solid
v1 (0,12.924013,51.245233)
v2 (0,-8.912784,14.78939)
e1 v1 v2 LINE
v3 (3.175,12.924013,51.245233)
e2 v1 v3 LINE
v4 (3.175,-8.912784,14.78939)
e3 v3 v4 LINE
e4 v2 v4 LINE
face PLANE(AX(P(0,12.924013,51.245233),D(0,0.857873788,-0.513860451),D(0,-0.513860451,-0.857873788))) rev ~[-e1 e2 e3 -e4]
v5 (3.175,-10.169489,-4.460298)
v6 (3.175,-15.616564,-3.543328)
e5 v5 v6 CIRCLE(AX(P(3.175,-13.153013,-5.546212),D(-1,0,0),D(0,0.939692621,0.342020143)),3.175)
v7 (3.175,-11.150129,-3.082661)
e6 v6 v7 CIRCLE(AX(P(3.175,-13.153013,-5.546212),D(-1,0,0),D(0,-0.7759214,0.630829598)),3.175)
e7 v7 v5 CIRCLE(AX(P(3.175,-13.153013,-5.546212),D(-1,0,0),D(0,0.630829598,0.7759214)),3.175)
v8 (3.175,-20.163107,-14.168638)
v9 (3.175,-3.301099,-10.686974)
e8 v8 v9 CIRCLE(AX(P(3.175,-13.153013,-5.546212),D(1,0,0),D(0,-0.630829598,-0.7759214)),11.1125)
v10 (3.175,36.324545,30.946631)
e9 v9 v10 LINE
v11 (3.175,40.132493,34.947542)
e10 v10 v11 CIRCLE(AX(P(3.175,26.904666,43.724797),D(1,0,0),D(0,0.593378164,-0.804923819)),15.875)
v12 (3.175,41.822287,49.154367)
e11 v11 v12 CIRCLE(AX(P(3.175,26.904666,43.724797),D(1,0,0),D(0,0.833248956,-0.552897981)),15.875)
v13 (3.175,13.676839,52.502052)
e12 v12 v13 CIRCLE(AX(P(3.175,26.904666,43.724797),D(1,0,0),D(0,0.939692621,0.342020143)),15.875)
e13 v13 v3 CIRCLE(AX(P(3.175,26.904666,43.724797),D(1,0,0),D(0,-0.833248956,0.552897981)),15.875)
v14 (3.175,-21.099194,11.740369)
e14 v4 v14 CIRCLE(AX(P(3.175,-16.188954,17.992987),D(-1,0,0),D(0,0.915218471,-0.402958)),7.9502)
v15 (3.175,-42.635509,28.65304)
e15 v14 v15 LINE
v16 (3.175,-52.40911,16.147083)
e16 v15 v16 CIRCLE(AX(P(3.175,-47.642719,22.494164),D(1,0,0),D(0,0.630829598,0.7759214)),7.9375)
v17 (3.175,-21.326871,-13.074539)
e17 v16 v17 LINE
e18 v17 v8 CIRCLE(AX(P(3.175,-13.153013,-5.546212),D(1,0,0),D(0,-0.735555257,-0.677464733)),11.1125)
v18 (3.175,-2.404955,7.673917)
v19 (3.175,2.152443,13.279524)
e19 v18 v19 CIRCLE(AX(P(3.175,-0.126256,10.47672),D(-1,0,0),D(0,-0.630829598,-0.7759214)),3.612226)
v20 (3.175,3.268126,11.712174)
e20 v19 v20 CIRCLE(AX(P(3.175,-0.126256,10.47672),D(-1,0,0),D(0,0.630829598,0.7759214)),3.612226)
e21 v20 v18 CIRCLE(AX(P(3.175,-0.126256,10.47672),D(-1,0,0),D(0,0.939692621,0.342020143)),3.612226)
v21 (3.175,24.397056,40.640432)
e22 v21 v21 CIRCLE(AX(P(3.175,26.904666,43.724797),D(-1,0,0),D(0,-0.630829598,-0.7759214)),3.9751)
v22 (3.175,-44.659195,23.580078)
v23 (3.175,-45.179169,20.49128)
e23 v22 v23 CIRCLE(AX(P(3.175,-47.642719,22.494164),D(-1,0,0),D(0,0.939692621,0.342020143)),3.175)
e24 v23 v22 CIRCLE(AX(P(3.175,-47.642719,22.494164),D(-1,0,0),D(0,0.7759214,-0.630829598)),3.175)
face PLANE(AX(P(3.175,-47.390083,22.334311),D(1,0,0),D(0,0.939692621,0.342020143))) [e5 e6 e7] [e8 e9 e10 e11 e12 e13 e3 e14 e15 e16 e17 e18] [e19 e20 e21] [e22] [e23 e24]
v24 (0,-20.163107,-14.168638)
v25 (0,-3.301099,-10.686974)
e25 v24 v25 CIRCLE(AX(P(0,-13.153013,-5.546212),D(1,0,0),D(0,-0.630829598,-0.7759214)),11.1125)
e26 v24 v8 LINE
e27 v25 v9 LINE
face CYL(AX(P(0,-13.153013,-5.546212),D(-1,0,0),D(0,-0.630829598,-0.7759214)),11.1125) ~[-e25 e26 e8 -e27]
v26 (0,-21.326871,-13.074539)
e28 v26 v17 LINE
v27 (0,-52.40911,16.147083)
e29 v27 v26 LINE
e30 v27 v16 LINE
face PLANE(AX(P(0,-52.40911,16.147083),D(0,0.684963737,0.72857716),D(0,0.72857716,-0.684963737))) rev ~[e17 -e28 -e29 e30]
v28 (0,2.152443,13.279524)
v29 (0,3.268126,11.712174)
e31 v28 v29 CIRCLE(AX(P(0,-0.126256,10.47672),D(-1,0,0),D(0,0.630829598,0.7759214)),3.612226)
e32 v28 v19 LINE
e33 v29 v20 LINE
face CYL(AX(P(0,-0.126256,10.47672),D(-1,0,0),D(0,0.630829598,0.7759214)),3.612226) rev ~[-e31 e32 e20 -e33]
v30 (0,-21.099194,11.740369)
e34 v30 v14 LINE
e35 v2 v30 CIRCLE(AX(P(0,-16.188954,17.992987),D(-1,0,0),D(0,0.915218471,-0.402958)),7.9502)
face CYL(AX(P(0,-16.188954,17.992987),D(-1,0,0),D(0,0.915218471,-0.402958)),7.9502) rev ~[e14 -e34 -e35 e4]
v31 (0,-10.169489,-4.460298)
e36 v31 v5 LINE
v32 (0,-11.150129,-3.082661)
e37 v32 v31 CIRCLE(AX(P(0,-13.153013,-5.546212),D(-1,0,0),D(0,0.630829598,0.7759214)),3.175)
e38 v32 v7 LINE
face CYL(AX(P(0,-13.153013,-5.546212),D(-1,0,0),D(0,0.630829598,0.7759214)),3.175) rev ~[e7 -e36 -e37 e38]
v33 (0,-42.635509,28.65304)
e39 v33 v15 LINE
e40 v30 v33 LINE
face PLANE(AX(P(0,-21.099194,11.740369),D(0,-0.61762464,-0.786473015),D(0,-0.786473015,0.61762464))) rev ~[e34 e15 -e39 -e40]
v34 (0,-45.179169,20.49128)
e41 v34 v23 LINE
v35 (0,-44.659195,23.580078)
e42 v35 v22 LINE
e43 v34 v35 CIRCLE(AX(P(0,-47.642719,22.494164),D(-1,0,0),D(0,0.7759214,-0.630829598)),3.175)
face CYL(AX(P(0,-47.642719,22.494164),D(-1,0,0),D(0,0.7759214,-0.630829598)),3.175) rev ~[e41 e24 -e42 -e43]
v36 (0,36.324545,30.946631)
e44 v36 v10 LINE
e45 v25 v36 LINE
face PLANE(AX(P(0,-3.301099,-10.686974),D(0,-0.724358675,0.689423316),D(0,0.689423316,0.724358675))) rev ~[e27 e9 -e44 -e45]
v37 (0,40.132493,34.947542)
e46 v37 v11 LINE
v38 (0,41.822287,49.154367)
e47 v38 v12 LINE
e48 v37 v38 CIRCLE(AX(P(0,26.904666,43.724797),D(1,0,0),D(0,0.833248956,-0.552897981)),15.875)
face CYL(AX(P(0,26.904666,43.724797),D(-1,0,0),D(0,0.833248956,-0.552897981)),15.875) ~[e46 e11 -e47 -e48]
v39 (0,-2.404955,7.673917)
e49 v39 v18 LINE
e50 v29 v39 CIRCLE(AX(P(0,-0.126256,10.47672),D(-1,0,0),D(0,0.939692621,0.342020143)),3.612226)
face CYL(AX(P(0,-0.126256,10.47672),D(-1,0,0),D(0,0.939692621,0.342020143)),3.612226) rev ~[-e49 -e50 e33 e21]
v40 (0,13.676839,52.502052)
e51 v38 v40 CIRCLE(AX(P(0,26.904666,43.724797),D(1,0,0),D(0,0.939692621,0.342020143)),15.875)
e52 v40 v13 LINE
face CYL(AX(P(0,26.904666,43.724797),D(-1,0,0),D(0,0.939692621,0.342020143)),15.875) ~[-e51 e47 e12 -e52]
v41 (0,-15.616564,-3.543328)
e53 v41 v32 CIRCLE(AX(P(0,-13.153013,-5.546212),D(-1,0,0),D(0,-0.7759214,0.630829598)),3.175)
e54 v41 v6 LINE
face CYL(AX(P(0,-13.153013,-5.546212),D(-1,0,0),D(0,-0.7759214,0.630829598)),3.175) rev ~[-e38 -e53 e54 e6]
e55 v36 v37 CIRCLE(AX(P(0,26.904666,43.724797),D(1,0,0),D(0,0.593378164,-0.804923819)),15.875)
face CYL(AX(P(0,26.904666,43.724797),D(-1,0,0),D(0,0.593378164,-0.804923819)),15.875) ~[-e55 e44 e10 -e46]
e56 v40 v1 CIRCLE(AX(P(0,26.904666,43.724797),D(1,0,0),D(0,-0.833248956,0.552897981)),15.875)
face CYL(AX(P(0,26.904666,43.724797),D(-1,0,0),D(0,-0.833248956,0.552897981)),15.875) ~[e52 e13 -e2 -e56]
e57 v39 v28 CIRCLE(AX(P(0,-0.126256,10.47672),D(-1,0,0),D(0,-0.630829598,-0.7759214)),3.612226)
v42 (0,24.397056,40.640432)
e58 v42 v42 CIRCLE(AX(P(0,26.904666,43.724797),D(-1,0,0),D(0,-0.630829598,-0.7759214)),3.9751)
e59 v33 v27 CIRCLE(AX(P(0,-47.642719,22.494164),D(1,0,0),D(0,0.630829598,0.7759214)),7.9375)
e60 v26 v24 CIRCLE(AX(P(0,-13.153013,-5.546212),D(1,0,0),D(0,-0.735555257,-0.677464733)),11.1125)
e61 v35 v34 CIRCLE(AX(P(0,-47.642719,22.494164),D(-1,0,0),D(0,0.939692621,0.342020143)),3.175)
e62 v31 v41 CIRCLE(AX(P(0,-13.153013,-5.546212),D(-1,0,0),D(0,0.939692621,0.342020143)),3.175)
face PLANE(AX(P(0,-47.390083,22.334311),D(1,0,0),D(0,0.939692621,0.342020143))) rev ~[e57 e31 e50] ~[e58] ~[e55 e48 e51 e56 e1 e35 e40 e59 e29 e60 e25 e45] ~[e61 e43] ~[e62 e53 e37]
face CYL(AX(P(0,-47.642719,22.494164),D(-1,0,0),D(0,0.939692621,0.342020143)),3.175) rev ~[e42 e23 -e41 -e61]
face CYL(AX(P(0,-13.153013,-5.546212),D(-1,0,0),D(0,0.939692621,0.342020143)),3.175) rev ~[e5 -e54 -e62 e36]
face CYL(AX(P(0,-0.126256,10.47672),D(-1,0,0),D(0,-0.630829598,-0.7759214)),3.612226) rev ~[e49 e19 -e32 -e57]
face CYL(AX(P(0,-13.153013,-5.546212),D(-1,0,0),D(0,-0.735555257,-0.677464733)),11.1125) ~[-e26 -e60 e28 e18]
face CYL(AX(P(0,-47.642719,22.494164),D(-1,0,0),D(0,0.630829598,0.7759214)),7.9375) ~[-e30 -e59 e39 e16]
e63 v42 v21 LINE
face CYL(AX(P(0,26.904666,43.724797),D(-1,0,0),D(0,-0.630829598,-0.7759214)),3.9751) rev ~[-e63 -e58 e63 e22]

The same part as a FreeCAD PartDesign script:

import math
import FreeCAD as App
import Part
import Sketcher

V = App.Vector
Q = App.Units.Quantity

doc = App.newDocument("Part")
body = doc.addObject("PartDesign::Body", "Body")

sketch1 = doc.addObject("Sketcher::SketchObject", "Sketch")
body.addObject(sketch1)
sketch1.AttachmentSupport = (doc.YZ_Plane, [""])
sketch1.MapMode = "FlatFace"
sketch1.addGeometry(Part.ArcOfCircle(Part.Circle(V(-27.588917, 11.125727, 0), V(0, 0, 1), 11.1125), math.radians(-149.111355), math.radians(-47.555707)), False)
sketch1.addGeometry(Part.LineSegment(V(-20.08939, 2.925437, 0), V(31.386066, 28.495461, 0)), False)
sketch1.addGeometry(Part.ArcOfCircle(Part.Circle(V(26.904666, 43.724797, 0), V(0, 0, 1), 15.875), math.radians(-73.602899), math.radians(-53.566055)), False)
sketch1.addGeometry(Part.ArcOfCircle(Part.Circle(V(26.904666, 43.724797, 0), V(0, 0, 1), 15.875), math.radians(-53.566055), math.radians(0)), False)
sketch1.addGeometry(Part.ArcOfCircle(Part.Circle(V(26.904666, 43.724797, 0), V(0, 0, 1), 15.875), math.radians(0), math.radians(126.433945)), False)
sketch1.addGeometry(Part.ArcOfCircle(Part.Circle(V(26.904666, 43.724797, 0), V(0, 0, 1), 15.875), math.radians(126.433945), math.radians(131.723422)), False)
sketch1.addGeometry(Part.LineSegment(V(16.33929, 55.57336, 0), V(-16.64922, 28.784698, 0)), False)
sketch1.addGeometry(Part.ArcOfCircle(Part.Circle(V(-22.390888, 34.283691, 0), V(0, 0, 1), 7.9502), math.radians(-148.14288), math.radians(-43.763228)), False)
sketch1.addGeometry(Part.LineSegment(V(-29.143525, 30.087553, 0), V(-43.596568, 53.346119, 0)), False)
sketch1.addGeometry(Part.ArcOfCircle(Part.Circle(V(-50.408266, 49.271235, 0), V(0, 0, 1), 7.9375), math.radians(30.888645), math.radians(213.094991)), False)
sketch1.addGeometry(Part.LineSegment(V(-57.058037, 44.937132, 0), V(-37.84467, 6.847038, 0)), False)
sketch1.addGeometry(Part.ArcOfCircle(Part.Circle(V(-27.588917, 11.125727, 0), V(0, 0, 1), 11.1125), math.radians(-157.354155), math.radians(-149.111355)), False)
sketch1.addGeometry(Part.ArcOfCircle(Part.Circle(V(-27.588917, 11.125727, 0), V(0, 0, 1), 3.175), math.radians(0), math.radians(30.888645)), False)
sketch1.addGeometry(Part.ArcOfCircle(Part.Circle(V(-27.588917, 11.125727, 0), V(0, 0, 1), 3.175), math.radians(120.888645), math.radians(360)), False)
sketch1.addGeometry(Part.ArcOfCircle(Part.Circle(V(-27.588917, 11.125727, 0), V(0, 0, 1), 3.175), math.radians(30.888645), math.radians(120.888645)), False)
sketch1.addGeometry(Part.ArcOfCircle(Part.Circle(V(-9.867604, 21.726944, 0), V(0, 0, 1), 3.612226), math.radians(30.888645), math.radians(210.888645)), False)
sketch1.addGeometry(Part.ArcOfCircle(Part.Circle(V(-9.867604, 21.726944, 0), V(0, 0, 1), 3.612226), math.radians(0), math.radians(30.888645)), False)
sketch1.addGeometry(Part.ArcOfCircle(Part.Circle(V(-9.867604, 21.726944, 0), V(0, 0, 1), 3.612226), math.radians(-149.111355), math.radians(0)), False)
sketch1.addGeometry(Part.ArcOfCircle(Part.Circle(V(-50.408266, 49.271235, 0), V(0, 0, 1), 3.175), math.radians(0), math.radians(300.888645)), False)
sketch1.addGeometry(Part.ArcOfCircle(Part.Circle(V(-50.408266, 49.271235, 0), V(0, 0, 1), 3.175), math.radians(-59.111355), math.radians(0)), False)
sketch1.addGeometry(Part.Circle(V(26.904666, 43.724797, 0), V(0, 0, 1), 3.9751), False)
sketch1.addConstraint(Sketcher.Constraint("Coincident", 0, 2, 1, 1))
sketch1.addConstraint(Sketcher.Constraint("Coincident", 1, 2, 2, 1))
sketch1.addConstraint(Sketcher.Constraint("Tangent", 2, 2, 3, 1))
sketch1.addConstraint(Sketcher.Constraint("Tangent", 3, 2, 4, 1))
sketch1.addConstraint(Sketcher.Constraint("Tangent", 4, 2, 5, 1))
sketch1.addConstraint(Sketcher.Constraint("Coincident", 5, 2, 6, 1))
sketch1.addConstraint(Sketcher.Constraint("Coincident", 6, 2, 7, 2))
sketch1.addConstraint(Sketcher.Constraint("Tangent", 7, 1, 8, 1))
sketch1.addConstraint(Sketcher.Constraint("Coincident", 8, 2, 9, 1))
sketch1.addConstraint(Sketcher.Constraint("Coincident", 9, 2, 10, 1))
sketch1.addConstraint(Sketcher.Constraint("Coincident", 10, 2, 11, 1))
sketch1.addConstraint(Sketcher.Constraint("Tangent", 11, 2, 0, 1))
sketch1.addConstraint(Sketcher.Constraint("Tangent", 12, 1, 13, 2))
sketch1.addConstraint(Sketcher.Constraint("Tangent", 13, 1, 14, 2))
sketch1.addConstraint(Sketcher.Constraint("Tangent", 14, 1, 12, 2))
sketch1.addConstraint(Sketcher.Constraint("Tangent", 15, 1, 16, 2))
sketch1.addConstraint(Sketcher.Constraint("Tangent", 16, 1, 17, 2))
sketch1.addConstraint(Sketcher.Constraint("Tangent", 17, 1, 15, 2))
sketch1.addConstraint(Sketcher.Constraint("Tangent", 18, 1, 19, 2))
sketch1.addConstraint(Sketcher.Constraint("Coincident", 19, 1, 18, 2))
sketch1.addConstraint(Sketcher.Constraint("Coincident", 4, 3, 2, 3))
sketch1.addConstraint(Sketcher.Constraint("Coincident", 12, 3, 0, 3))
sketch1.addConstraint(Sketcher.Constraint("Coincident", 18, 3, 9, 3))
sketch1.addConstraint(Sketcher.Constraint("Coincident", 20, 3, 2, 3))
sketch1.addConstraint(Sketcher.Constraint("Equal", 4, 5))
sketch1.addConstraint(Sketcher.Constraint("Equal", 0, 11))
sketch1.addConstraint(Sketcher.Constraint("Equal", 14, 18))
sketch1.addConstraint(Sketcher.Constraint("Horizontal", 20, 3, 3, 2))
sketch1.addConstraint(Sketcher.Constraint("Horizontal", 14, 3, 12, 1))
sketch1.addConstraint(Sketcher.Constraint("Horizontal", 17, 3, 16, 1))
sketch1.addConstraint(Sketcher.Constraint("Horizontal", 19, 3, 18, 1))
sketch1.addConstraint(Sketcher.Constraint("Diameter", 20, Q("0.313 in")))
sketch1.addConstraint(Sketcher.Constraint("Radius", 0, Q("0.4375 in")))
sketch1.addConstraint(Sketcher.Constraint("Radius", 2, Q("0.625 in")))
sketch1.addConstraint(Sketcher.Constraint("Radius", 7, Q("0.313 in")))
sketch1.addConstraint(Sketcher.Constraint("Radius", 9, Q("0.3125 in")))
sketch1.addConstraint(Sketcher.Constraint("Radius", 12, Q("0.125 in")))
sketch1.addConstraint(Sketcher.Constraint("DistanceY", -1, 1, 15, 1, Q("0.9283999 in")))
sketch1.addConstraint(Sketcher.Constraint("Radius", 15, Q("3.612226 mm")))
sketch1.addConstraint(Sketcher.Constraint("DistanceY", 11, 2, 11, 3, Q("0.2245999 in")))
sketch1.addConstraint(Sketcher.Constraint("DistanceY", -1, 1, 6, 2, Q("28.784698 mm")))
sketch1.addConstraint(Sketcher.Constraint("DistanceX", 2, 3, 1, 2, Q("4.4814 mm")))
sketch1.addConstraint(Sketcher.Constraint("Distance", 6, Q("42.495578 mm")))
sketch1.addConstraint(Sketcher.Constraint("Distance", 10, Q("42.661561 mm")))
sketch1.addConstraint(Sketcher.Constraint("DistanceX", 7, 3, -1, 1, Q("22.390888 mm")))
sketch1.addConstraint(Sketcher.Constraint("DistanceY", -1, 1, 7, 3, Q("34.283691 mm")))
sketch1.addConstraint(Sketcher.Constraint("DistanceX", 0, 2, -1, 1, Q("20.08939 mm")))
sketch1.addConstraint(Sketcher.Constraint("DistanceY", -1, 1, 1, 2, Q("28.495461 mm")))
sketch1.addConstraint(Sketcher.Constraint("DistanceX", -1, 1, 2, 2, Q("36.33276 mm")))
sketch1.addConstraint(Sketcher.Constraint("DistanceY", -1, 1, 2, 2, Q("30.952692 mm")))
sketch1.addConstraint(Sketcher.Constraint("DistanceX", 8, 2, -1, 1, Q("43.596568 mm")))
sketch1.addConstraint(Sketcher.Constraint("DistanceY", -1, 1, 8, 2, Q("53.346119 mm")))
sketch1.addConstraint(Sketcher.Constraint("DistanceX", 10, 2, -1, 1, Q("37.84467 mm")))
sketch1.addConstraint(Sketcher.Constraint("DistanceY", -1, 1, 11, 2, Q("5.42089 mm")))
sketch1.addConstraint(Sketcher.Constraint("DistanceX", 13, 1, -1, 1, Q("29.218871 mm")))
sketch1.addConstraint(Sketcher.Constraint("DistanceY", -1, 1, 14, 1, Q("12.75568 mm")))
sketch1.addConstraint(Sketcher.Constraint("DistanceX", 15, 1, -1, 1, Q("6.767712 mm")))
sketch1.addConstraint(Sketcher.Constraint("DistanceY", -1, 1, 17, 1, Q("19.872532 mm")))
sketch1.addConstraint(Sketcher.Constraint("DistanceX", 0, 3, 7, 3, Q("5.198029 mm")))
sketch1.addConstraint(Sketcher.Constraint("DistanceX", 9, 3, 0, 3, Q("22.819349 mm")))
sketch1.addConstraint(Sketcher.Constraint("DistanceX", 15, 3, 20, 3, Q("36.77227 mm")))
sketch1.addConstraint(Sketcher.Constraint("DistanceY", 19, 1, 18, 1, Q("2.724679 mm")))
sketch1.addConstraint(Sketcher.Constraint("DistanceX", -1, 1, 4, 2, Q("17.476573 mm")))
pad1 = doc.addObject("PartDesign::Pad", "Pad")
body.addObject(pad1)
pad1.Profile = sketch1
pad1.Length = Q("0.125 in")
body2 = doc.addObject("PartDesign::Body", "Body001")
doc.recompute()

body.Placement = App.Placement(V(0, 16.577311, -6.56501), App.Rotation(V(1, 0, 0), 20))
boolean = doc.addObject("PartDesign::Boolean", "Boolean")
body2.addObject(boolean)
boolean.Type = "Fuse"
boolean.addObjects([body])

doc.recompute()
